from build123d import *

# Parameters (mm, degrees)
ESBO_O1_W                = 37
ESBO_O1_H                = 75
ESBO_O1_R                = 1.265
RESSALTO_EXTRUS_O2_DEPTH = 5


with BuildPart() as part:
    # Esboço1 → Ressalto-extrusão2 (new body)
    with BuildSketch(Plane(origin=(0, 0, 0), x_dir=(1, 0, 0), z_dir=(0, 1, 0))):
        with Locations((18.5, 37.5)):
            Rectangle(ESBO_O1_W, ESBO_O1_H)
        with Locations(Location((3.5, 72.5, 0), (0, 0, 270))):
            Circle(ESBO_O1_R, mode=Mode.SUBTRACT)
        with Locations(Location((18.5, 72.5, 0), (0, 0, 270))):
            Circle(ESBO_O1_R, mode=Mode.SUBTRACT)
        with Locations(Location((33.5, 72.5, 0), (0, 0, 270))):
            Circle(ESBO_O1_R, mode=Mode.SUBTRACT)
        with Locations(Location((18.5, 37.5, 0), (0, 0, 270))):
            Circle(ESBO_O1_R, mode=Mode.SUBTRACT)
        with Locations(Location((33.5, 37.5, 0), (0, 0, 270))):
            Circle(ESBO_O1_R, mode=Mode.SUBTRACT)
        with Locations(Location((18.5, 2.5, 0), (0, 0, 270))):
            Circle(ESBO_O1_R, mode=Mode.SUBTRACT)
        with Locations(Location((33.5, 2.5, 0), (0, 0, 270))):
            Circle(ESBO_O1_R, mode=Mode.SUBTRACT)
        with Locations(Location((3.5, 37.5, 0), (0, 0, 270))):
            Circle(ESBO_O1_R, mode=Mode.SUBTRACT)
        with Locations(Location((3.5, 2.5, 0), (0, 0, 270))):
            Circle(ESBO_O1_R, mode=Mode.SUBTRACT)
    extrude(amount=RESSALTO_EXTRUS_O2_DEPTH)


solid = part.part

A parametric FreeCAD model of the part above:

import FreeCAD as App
import Part
import Sketcher


def add_polygon(sketch, points):
    """Adds a closed chain of lines whose ends are joined by coincident constraints."""
    first, n = sketch.GeometryCount, len(points)
    for a, b in zip(points, points[1:] + points[:1]):
        sketch.addGeometry(Part.LineSegment(App.Vector(*a, 0), App.Vector(*b, 0)), False)
    for i in range(n):
        sketch.addConstraint(Sketcher.Constraint("Coincident", first + i, 2, first + (i + 1) % n, 1))

doc = App.newDocument("Part")
body = doc.addObject("PartDesign::Body", "Body")

sketch1 = body.newObject("Sketcher::SketchObject", "Sketch")
sketch1.AttachmentSupport = (doc.getObject("XZ_Plane"), [""])
sketch1.MapMode = "FlatFace"
add_polygon(sketch1, [(0, -75), (0, 0), (37, 0), (37, -75)])
sketch1.addGeometry(Part.Circle(App.Vector(3.5, -2.5, 0), App.Vector(0, 0, 1), 1.3), False)
sketch1.addGeometry(Part.Circle(App.Vector(18.5, -2.5, 0), App.Vector(0, 0, 1), 1.3), False)
sketch1.addGeometry(Part.Circle(App.Vector(33.5, -2.5, 0), App.Vector(0, 0, 1), 1.3), False)
sketch1.addGeometry(Part.Circle(App.Vector(3.5, -37.5, 0), App.Vector(0, 0, 1), 1.3), False)
sketch1.addGeometry(Part.Circle(App.Vector(3.5, -72.5, 0), App.Vector(0, 0, 1), 1.3), False)
sketch1.addGeometry(Part.Circle(App.Vector(18.5, -37.5, 0), App.Vector(0, 0, 1), 1.3), False)
sketch1.addGeometry(Part.Circle(App.Vector(33.5, -37.5, 0), App.Vector(0, 0, 1), 1.3), False)
sketch1.addGeometry(Part.Circle(App.Vector(18.5, -72.5, 0), App.Vector(0, 0, 1), 1.3), False)
sketch1.addGeometry(Part.Circle(App.Vector(33.5, -72.5, 0), App.Vector(0, 0, 1), 1.3), False)
sketch1.addConstraint(Sketcher.Constraint("Vertical", 0))
sketch1.addConstraint(Sketcher.Constraint("Horizontal", 1))
sketch1.addConstraint(Sketcher.Constraint("Vertical", 2))
sketch1.addConstraint(Sketcher.Constraint("Horizontal", 3))
sketch1.addConstraint(Sketcher.Constraint("Coincident", 0, 2, -1, 1))
sketch1.addConstraint(Sketcher.Constraint("Equal", 4, 5))
sketch1.addConstraint(Sketcher.Constraint("Equal", 5, 6))
sketch1.addConstraint(Sketcher.Constraint("Equal", 6, 7))
sketch1.addConstraint(Sketcher.Constraint("Equal", 7, 8))
sketch1.addConstraint(Sketcher.Constraint("Equal", 8, 9))
sketch1.addConstraint(Sketcher.Constraint("Equal", 9, 10))
sketch1.addConstraint(Sketcher.Constraint("Equal", 10, 11))
sketch1.addConstraint(Sketcher.Constraint("Equal", 11, 12))
sketch1.addConstraint(Sketcher.Constraint("Horizontal", 4, 3, 5, 3))
sketch1.addConstraint(Sketcher.Constraint("Horizontal", 5, 3, 6, 3))
sketch1.addConstraint(Sketcher.Constraint("Horizontal", 7, 3, 9, 3))
sketch1.addConstraint(Sketcher.Constraint("Horizontal", 9, 3, 10, 3))
sketch1.addConstraint(Sketcher.Constraint("Horizontal", 8, 3, 11, 3))
sketch1.addConstraint(Sketcher.Constraint("Horizontal", 11, 3, 12, 3))
sketch1.addConstraint(Sketcher.Constraint("Vertical", 4, 3, 7, 3))
sketch1.addConstraint(Sketcher.Constraint("Vertical", 7, 3, 8, 3))
sketch1.addConstraint(Sketcher.Constraint("Vertical", 5, 3, 9, 3))
sketch1.addConstraint(Sketcher.Constraint("Vertical", 6, 3, 10, 3))
sketch1.addConstraint(Sketcher.Constraint("Vertical", 9, 3, 11, 3))
sketch1.addConstraint(Sketcher.Constraint("Vertical", 10, 3, 12, 3))
sketch1.addConstraint(Sketcher.Constraint("Diameter", 4, 2.53))
sketch1.addConstraint(Sketcher.Constraint("DistanceX", 1, 1, 1, 2, 37.0))
sketch1.addConstraint(Sketcher.Constraint("DistanceY", 0, 1, 0, 2, 75.0))
sketch1.addConstraint(Sketcher.Constraint("DistanceX", 4, 3, 5, 3, 15.0))
sketch1.addConstraint(Sketcher.Constraint("DistanceX", 5, 3, 6, 3, 15.0))
sketch1.addConstraint(Sketcher.Constraint("DistanceY", 7, 3, 4, 3, 35.0))
sketch1.addConstraint(Sketcher.Constraint("DistanceY", 8, 3, 7, 3, 35.0))
sketch1.addConstraint(Sketcher.Constraint("DistanceX", -1, 1, 4, 3, 3.5))
sketch1.addConstraint(Sketcher.Constraint("DistanceY", 4, 3, -1, 1, 2.5))
pad1 = body.newObject("PartDesign::Pad", "Pad")
pad1.Profile = sketch1
pad1.Length = 5
pad1.Reversed = True

doc.recompute()
